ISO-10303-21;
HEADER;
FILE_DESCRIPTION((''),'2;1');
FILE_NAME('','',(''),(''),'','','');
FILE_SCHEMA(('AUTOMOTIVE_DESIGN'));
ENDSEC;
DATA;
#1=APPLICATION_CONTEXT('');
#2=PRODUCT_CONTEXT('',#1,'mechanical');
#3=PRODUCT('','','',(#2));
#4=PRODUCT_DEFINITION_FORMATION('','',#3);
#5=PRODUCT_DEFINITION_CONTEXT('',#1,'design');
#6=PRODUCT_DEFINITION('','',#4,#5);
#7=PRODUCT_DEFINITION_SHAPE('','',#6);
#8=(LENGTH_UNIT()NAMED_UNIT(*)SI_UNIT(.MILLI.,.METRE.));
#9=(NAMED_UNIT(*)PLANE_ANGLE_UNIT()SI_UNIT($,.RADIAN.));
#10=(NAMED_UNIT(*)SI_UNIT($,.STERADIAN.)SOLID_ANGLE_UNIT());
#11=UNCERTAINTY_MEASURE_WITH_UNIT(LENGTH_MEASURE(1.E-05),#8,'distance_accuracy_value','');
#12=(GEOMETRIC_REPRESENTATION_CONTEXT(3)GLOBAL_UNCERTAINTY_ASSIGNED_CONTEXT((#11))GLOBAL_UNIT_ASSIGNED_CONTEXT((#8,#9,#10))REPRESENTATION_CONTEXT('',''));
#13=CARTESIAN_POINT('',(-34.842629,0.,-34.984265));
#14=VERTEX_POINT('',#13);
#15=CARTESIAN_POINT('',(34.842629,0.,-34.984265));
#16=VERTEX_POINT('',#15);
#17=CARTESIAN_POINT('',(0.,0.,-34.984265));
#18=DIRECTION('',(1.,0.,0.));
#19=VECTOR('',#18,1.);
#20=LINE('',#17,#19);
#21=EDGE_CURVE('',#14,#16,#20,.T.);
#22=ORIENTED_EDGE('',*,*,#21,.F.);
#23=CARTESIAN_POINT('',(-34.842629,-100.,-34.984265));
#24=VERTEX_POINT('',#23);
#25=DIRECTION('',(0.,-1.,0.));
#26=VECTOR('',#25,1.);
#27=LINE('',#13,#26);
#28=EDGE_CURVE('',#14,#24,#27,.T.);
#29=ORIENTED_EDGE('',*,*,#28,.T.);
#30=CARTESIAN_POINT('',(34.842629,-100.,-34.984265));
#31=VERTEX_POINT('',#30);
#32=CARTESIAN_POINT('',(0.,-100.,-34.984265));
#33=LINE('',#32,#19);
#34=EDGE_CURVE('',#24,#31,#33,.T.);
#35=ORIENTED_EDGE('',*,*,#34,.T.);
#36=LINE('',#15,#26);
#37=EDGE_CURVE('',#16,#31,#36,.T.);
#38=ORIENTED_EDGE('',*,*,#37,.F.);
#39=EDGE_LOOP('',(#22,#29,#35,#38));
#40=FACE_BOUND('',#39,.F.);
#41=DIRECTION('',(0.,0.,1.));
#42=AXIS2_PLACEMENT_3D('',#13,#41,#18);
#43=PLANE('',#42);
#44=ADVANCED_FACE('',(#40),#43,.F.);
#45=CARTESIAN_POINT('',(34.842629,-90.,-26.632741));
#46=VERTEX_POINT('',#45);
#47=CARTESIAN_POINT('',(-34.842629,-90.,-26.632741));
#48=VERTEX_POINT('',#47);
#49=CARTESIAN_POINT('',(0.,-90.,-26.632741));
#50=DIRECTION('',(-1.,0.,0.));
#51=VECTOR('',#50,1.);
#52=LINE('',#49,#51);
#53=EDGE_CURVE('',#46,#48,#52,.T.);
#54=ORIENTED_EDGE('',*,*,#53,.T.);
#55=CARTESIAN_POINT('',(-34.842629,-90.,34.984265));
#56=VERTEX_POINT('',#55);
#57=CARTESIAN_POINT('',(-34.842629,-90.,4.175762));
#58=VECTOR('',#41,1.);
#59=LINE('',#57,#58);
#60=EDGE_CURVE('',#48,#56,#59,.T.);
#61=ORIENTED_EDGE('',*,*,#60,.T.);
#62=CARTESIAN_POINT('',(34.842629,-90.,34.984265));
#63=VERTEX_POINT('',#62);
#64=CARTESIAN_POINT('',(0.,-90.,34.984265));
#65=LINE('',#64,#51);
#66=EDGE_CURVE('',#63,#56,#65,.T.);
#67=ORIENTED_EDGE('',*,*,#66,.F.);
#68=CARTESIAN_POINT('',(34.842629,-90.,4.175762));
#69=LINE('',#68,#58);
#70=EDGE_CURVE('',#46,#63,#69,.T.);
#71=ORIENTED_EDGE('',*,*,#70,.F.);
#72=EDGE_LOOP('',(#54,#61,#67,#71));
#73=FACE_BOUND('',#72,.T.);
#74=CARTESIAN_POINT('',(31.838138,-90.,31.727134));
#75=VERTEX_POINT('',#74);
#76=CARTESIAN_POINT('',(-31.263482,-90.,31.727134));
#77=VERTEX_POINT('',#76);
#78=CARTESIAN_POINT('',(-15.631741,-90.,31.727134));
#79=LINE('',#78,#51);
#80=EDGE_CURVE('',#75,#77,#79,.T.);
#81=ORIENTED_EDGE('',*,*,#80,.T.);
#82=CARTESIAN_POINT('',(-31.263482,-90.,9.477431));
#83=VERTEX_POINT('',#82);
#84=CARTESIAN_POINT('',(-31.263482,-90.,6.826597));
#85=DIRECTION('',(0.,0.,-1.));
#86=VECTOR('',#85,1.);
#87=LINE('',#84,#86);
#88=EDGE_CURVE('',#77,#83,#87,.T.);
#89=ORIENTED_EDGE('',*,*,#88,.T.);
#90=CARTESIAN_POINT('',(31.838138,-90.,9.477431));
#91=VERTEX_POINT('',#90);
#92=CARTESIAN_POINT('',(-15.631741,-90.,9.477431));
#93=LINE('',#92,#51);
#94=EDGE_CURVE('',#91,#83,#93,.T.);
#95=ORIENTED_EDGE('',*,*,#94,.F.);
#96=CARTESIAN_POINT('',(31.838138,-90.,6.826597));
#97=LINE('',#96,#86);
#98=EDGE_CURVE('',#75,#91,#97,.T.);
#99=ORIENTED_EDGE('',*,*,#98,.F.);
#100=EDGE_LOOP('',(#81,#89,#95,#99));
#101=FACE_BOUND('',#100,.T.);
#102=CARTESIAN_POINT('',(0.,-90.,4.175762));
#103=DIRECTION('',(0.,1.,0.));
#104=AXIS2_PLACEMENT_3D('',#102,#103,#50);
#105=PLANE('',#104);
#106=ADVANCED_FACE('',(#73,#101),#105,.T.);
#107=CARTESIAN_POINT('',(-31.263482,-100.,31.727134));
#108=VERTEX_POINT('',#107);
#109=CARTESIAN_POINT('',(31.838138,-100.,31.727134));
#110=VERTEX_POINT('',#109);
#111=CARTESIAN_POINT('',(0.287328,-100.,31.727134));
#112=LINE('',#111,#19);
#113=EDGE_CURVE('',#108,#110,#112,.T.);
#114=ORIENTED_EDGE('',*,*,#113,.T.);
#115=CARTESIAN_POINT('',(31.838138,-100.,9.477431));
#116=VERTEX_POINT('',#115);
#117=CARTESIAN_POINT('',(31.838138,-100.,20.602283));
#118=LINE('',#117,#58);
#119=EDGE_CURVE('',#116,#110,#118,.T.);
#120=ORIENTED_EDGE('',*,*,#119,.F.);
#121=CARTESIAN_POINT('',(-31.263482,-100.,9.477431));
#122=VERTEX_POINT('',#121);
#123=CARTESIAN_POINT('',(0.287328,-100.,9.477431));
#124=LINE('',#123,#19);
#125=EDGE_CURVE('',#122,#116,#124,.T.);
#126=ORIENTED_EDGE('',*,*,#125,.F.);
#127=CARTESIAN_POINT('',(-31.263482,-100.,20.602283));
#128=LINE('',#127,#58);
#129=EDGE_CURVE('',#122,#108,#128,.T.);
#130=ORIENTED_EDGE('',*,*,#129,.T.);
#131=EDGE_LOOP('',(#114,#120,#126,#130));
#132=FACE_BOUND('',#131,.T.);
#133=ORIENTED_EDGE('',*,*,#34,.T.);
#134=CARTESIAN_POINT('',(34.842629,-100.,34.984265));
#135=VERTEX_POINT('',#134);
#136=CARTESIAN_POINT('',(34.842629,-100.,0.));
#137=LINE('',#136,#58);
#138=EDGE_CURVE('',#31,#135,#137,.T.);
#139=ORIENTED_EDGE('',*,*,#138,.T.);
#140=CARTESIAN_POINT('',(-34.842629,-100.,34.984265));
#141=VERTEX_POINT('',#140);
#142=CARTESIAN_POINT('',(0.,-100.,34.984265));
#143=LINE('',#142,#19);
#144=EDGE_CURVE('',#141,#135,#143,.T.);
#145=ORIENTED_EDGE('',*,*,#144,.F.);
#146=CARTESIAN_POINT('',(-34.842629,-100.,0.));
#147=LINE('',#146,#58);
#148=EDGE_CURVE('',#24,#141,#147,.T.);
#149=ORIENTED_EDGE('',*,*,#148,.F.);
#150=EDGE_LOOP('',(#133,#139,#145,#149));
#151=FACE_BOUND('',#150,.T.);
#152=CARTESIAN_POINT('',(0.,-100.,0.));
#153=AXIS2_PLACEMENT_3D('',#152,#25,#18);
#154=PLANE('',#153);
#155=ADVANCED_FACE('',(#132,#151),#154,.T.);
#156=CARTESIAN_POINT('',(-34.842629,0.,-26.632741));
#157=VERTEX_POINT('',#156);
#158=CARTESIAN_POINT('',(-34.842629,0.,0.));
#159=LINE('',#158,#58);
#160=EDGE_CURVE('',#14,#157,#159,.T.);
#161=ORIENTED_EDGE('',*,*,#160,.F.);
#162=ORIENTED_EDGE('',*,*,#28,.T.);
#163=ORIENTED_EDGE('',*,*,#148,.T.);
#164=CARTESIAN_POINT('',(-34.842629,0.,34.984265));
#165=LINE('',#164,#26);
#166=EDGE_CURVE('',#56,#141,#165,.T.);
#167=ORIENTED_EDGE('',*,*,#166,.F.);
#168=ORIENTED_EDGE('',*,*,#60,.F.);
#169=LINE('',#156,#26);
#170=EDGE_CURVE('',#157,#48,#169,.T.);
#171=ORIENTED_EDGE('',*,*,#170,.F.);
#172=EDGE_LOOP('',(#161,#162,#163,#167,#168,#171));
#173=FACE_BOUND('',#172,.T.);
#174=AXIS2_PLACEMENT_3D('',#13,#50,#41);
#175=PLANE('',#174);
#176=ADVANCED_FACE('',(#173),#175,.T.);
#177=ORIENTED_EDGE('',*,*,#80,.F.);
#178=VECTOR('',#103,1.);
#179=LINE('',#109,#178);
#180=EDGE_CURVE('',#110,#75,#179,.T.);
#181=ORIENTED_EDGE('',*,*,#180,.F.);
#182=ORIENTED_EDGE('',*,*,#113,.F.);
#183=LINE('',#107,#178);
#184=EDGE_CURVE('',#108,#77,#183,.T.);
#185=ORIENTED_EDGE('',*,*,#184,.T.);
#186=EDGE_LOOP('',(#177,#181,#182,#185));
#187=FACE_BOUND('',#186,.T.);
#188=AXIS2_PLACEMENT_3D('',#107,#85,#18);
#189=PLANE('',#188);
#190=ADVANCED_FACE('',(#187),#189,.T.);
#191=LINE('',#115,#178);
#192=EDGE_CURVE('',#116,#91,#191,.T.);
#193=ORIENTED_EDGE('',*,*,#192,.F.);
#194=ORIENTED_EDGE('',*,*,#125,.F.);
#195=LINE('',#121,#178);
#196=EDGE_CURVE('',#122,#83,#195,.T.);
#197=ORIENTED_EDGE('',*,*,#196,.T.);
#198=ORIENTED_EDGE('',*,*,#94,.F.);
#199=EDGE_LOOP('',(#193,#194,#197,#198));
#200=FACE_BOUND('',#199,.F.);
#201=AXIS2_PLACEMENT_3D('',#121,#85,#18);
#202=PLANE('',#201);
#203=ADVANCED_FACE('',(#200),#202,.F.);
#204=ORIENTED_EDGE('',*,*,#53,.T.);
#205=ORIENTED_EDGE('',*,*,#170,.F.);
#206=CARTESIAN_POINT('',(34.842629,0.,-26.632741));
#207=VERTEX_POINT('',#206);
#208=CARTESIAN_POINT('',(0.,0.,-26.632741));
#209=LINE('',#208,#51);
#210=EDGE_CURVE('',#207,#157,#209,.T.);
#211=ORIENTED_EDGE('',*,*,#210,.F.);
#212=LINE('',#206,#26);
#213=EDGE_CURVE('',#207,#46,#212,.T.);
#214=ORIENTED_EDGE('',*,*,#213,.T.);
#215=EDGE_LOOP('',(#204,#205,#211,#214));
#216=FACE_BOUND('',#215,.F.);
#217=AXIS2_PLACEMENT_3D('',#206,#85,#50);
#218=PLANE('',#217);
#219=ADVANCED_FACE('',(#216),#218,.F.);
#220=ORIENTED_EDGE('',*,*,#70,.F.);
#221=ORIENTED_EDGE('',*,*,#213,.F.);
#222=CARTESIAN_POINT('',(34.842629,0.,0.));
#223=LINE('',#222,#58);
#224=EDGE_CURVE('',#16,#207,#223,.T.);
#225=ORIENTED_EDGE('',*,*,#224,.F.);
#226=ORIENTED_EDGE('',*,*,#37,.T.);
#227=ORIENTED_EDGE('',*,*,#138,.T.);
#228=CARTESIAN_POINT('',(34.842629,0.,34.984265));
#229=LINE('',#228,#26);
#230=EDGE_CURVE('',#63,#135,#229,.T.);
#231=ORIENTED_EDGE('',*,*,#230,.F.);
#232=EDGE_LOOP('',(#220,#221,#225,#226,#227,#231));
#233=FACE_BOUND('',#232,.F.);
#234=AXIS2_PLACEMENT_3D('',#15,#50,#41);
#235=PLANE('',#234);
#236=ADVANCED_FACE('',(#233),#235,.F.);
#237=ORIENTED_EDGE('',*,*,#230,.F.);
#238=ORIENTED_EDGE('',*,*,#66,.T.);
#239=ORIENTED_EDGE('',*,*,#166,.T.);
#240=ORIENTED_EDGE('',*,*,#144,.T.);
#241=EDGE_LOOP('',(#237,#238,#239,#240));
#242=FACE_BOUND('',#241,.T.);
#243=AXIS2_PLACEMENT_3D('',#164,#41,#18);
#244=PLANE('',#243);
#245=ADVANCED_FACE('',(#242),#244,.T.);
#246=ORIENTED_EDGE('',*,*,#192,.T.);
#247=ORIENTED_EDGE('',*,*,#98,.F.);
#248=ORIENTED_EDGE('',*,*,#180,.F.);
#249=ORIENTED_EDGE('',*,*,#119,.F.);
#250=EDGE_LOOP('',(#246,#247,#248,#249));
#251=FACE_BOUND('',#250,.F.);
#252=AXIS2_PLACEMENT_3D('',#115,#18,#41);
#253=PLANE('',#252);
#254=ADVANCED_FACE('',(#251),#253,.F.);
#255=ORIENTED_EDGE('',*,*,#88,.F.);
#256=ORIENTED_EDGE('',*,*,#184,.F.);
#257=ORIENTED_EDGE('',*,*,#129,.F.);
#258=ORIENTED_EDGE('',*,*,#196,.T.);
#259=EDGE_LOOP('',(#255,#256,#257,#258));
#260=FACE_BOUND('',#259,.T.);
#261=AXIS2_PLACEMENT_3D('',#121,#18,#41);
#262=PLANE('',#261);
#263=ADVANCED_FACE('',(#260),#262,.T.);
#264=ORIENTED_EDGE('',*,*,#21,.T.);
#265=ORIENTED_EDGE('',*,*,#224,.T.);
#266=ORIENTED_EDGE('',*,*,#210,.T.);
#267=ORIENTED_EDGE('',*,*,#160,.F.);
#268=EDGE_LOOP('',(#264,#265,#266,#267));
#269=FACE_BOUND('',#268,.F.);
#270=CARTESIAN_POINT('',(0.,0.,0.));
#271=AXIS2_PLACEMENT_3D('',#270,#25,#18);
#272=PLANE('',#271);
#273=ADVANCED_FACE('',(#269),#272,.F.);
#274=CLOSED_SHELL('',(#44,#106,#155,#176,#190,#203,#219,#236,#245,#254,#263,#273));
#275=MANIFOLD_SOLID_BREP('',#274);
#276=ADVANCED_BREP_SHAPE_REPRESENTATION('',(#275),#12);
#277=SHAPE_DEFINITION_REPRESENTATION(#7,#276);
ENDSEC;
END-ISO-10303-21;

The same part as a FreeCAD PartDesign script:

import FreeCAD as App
import Part
import Sketcher

doc = App.newDocument("Part")
body = doc.addObject("PartDesign::Body", "Body")

sketch1 = body.newObject("Sketcher::SketchObject", "Sketch")
sketch1.AttachmentSupport = (doc.getObject("XZ_Plane"), [""])
sketch1.MapMode = "FlatFace"
sketch1.addGeometry(Part.LineSegment(App.Vector(-35, 35, 0), App.Vector(-35, -35, 0)), False)
sketch1.addGeometry(Part.LineSegment(App.Vector(-35, -35, 0), App.Vector(35, -35, 0)), False)
sketch1.addGeometry(Part.LineSegment(App.Vector(35, -35, 0), App.Vector(35, 35, 0)), False)
sketch1.addGeometry(Part.LineSegment(App.Vector(35, 35, 0), App.Vector(-35, 35, 0)), False)
sketch1.addConstraint(Sketcher.Constraint("Coincident", 0, 2, 1, 1))
sketch1.addConstraint(Sketcher.Constraint("Coincident", 1, 2, 2, 1))
sketch1.addConstraint(Sketcher.Constraint("Coincident", 2, 2, 3, 1))
sketch1.addConstraint(Sketcher.Constraint("Coincident", 3, 2, 0, 1))
sketch1.addConstraint(Sketcher.Constraint("Vertical", 0))
sketch1.addConstraint(Sketcher.Constraint("Horizontal", 1))
sketch1.addConstraint(Sketcher.Constraint("Vertical", 2))
sketch1.addConstraint(Sketcher.Constraint("Horizontal", 3))
sketch1.addConstraint(Sketcher.Constraint("Symmetric", 0, 2, 2, 2, -1, 1))
sketch1.addConstraint(Sketcher.Constraint("DistanceX", 1, 1, 1, 2, 69.685258))
sketch1.addConstraint(Sketcher.Constraint("DistanceY", 0, 2, 0, 1, 69.96853))
pad1 = body.newObject("PartDesign::Pad", "Pad")
pad1.Profile = sketch1
pad1.Length = 100

sketch2 = body.newObject("Sketcher::SketchObject", "Sketch001")
sketch2.AttachmentSupport = (doc.getObject("XZ_Plane"), [""])
sketch2.MapMode = "FlatFace"
sketch2.addGeometry(Part.LineSegment(App.Vector(35, 35, 0), App.Vector(35, -27, 0)), False)
sketch2.addGeometry(Part.LineSegment(App.Vector(35, -27, 0), App.Vector(-35, -27, 0)), False)
sketch2.addGeometry(Part.LineSegment(App.Vector(-35, -27, 0), App.Vector(-35, 35, 0)), False)
sketch2.addGeometry(Part.LineSegment(App.Vector(-35, 35, 0), App.Vector(35, 35, 0)), False)
sketch2.addConstraint(Sketcher.Constraint("Coincident", 0, 2, 1, 1))
sketch2.addConstraint(Sketcher.Constraint("Coincident", 1, 2, 2, 1))
sketch2.addConstraint(Sketcher.Constraint("Coincident", 2, 2, 3, 1))
sketch2.addConstraint(Sketcher.Constraint("Coincident", 3, 2, 0, 1))
sketch2.addConstraint(Sketcher.Constraint("Vertical", 0))
sketch2.addConstraint(Sketcher.Constraint("Horizontal", 1))
sketch2.addConstraint(Sketcher.Constraint("Vertical", 2))
sketch2.addConstraint(Sketcher.Constraint("Horizontal", 3))
sketch2.addConstraint(Sketcher.Constraint("DistanceX", 1, 2, 1, 1, 69.685258))
sketch2.addConstraint(Sketcher.Constraint("DistanceY", 0, 2, 0, 1, 61.617006))
sketch2.addConstraint(Sketcher.Constraint("DistanceX", -1, 1, 0, 2, 34.842629))
sketch2.addConstraint(Sketcher.Constraint("DistanceY", 0, 2, -1, 1, 26.632741))
pocket1 = body.newObject("PartDesign::Pocket", "Pocket")
pocket1.Profile = sketch2
pocket1.Length = 90
pocket1.Reversed = True

sketch3 = body.newObject("Sketcher::SketchObject", "Sketch002")
sketch3.AttachmentSupport = (doc.getObject("XZ_Plane"), [""])
sketch3.MapMode = "FlatFace"
sketch3.AttachmentOffset = App.Placement(App.Vector(0, 0, 100), App.Rotation())
sketch3.addGeometry(Part.LineSegment(App.Vector(-31, 32, 0), App.Vector(-31, 9, 0)), False)
sketch3.addGeometry(Part.LineSegment(App.Vector(-31, 9, 0), App.Vector(32, 9, 0)), False)
sketch3.addGeometry(Part.LineSegment(App.Vector(32, 9, 0), App.Vector(32, 32, 0)), False)
sketch3.addGeometry(Part.LineSegment(App.Vector(32, 32, 0), App.Vector(-31, 32, 0)), False)
sketch3.addConstraint(Sketcher.Constraint("Coincident", 0, 2, 1, 1))
sketch3.addConstraint(Sketcher.Constraint("Coincident", 1, 2, 2, 1))
sketch3.addConstraint(Sketcher.Constraint("Coincident", 2, 2, 3, 1))
sketch3.addConstraint(Sketcher.Constraint("Coincident", 3, 2, 0, 1))
sketch3.addConstraint(Sketcher.Constraint("Vertical", 0))
sketch3.addConstraint(Sketcher.Constraint("Horizontal", 1))
sketch3.addConstraint(Sketcher.Constraint("Vertical", 2))
sketch3.addConstraint(Sketcher.Constraint("Horizontal", 3))
sketch3.addConstraint(Sketcher.Constraint("DistanceX", 1, 1, 1, 2, 63.10162))
sketch3.addConstraint(Sketcher.Constraint("DistanceY", 0, 2, 0, 1, 22.249703))
sketch3.addConstraint(Sketcher.Constraint("DistanceX", 0, 2, -1, 1, 31.263482))
sketch3.addConstraint(Sketcher.Constraint("DistanceY", -1, 1, 0, 2, 9.477431))
pocket2 = body.newObject("PartDesign::Pocket", "Pocket001")
pocket2.Profile = sketch3
pocket2.Length = 25

doc.recompute()
